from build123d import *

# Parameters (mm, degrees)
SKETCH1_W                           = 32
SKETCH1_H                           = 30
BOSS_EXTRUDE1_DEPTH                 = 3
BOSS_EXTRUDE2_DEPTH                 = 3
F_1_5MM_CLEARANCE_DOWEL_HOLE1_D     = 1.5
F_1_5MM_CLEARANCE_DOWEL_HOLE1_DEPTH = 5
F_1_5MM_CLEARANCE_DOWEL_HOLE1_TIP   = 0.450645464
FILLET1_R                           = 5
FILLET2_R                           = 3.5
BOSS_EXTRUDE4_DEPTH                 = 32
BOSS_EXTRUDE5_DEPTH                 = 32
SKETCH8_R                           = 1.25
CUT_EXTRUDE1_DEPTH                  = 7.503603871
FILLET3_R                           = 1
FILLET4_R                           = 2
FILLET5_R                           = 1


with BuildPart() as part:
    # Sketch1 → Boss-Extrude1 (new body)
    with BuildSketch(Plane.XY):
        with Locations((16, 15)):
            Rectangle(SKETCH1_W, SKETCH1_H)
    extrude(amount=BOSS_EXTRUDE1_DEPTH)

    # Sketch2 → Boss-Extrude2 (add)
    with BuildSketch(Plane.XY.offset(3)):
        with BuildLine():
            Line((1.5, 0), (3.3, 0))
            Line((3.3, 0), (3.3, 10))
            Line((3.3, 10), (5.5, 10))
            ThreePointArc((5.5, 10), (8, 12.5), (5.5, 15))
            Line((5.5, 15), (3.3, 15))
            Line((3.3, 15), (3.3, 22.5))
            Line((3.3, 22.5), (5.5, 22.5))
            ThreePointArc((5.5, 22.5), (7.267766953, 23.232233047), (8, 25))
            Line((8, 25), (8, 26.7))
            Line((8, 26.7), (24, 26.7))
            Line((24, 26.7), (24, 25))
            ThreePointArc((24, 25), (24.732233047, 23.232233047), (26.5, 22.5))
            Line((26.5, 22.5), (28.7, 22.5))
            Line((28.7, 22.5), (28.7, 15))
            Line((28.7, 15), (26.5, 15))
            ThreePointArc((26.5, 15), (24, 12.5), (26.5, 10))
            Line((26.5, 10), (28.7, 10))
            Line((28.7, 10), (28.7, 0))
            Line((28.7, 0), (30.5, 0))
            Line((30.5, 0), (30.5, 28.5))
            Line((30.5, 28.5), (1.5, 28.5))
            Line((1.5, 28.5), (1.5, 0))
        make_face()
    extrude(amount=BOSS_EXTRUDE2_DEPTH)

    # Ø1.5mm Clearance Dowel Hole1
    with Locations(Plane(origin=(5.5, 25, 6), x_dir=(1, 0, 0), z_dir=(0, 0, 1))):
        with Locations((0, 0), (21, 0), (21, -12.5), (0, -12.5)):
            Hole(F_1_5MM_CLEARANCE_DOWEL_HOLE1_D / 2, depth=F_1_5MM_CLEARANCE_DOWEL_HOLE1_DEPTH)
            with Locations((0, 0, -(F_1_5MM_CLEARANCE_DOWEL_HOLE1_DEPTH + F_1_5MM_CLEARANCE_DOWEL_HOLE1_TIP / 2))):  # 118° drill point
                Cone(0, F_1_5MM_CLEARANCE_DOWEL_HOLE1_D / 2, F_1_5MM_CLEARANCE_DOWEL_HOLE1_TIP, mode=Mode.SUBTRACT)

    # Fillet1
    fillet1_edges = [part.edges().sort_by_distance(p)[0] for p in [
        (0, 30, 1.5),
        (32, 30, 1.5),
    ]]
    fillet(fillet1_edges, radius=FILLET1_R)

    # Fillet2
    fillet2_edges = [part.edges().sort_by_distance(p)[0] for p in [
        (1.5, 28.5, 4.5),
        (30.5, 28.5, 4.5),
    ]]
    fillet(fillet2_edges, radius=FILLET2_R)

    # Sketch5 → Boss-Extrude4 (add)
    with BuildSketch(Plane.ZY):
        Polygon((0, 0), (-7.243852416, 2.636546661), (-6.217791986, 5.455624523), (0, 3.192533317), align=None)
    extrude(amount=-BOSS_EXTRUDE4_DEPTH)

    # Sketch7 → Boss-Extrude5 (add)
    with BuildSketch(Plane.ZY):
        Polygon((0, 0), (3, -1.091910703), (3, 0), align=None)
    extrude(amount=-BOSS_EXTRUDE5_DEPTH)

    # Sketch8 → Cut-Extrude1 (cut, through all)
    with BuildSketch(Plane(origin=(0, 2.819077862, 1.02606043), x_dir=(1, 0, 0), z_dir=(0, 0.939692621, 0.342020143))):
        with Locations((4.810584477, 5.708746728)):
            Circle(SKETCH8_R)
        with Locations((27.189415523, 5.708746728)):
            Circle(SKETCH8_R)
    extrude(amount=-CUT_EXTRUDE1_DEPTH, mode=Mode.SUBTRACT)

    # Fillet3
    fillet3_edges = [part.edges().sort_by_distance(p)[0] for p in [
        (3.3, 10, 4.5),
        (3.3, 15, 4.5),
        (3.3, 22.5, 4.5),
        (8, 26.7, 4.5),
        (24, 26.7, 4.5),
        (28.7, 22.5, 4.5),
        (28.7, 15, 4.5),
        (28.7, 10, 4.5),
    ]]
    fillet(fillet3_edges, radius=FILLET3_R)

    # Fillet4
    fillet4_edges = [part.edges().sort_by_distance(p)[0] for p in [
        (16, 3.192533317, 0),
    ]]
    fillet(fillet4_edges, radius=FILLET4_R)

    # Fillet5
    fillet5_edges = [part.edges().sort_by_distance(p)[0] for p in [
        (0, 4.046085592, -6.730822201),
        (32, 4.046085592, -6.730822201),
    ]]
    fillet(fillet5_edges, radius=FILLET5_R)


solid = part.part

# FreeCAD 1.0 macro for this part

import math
import FreeCAD as App
import Part
import Sketcher

V = App.Vector
Q = App.Units.Quantity


def edges_at(feature, points):
    """Names of the edges that pass closest to the given points."""
    edges = feature.Shape.Edges
    near = lambda p: min(range(len(edges)), key=lambda i: edges[i].distToShape(Part.Vertex(*p))[0])
    return sorted({f"Edge{near(p) + 1}" for p in points})

doc = App.newDocument("Part")
body = doc.addObject("PartDesign::Body", "Body")

# Sketch on XY plane
sketch1 = doc.addObject("Sketcher::SketchObject", "Sketch")
body.addObject(sketch1)
sketch1.AttachmentSupport = (doc.XY_Plane, [""])
sketch1.MapMode = "FlatFace"
sketch1.addGeometry(Part.LineSegment(V(0, 30, 0), V(0, 0, 0)), False)
sketch1.addGeometry(Part.LineSegment(V(0, 0, 0), V(32, 0, 0)), False)
sketch1.addGeometry(Part.LineSegment(V(32, 0, 0), V(32, 30, 0)), False)
sketch1.addGeometry(Part.LineSegment(V(32, 30, 0), V(0, 30, 0)), False)
sketch1.addConstraint(Sketcher.Constraint("Coincident", 0, 2, 1, 1))
sketch1.addConstraint(Sketcher.Constraint("Coincident", 1, 2, 2, 1))
sketch1.addConstraint(Sketcher.Constraint("Coincident", 2, 2, 3, 1))
sketch1.addConstraint(Sketcher.Constraint("Coincident", 3, 2, 0, 1))
sketch1.addConstraint(Sketcher.Constraint("Vertical", 0))
sketch1.addConstraint(Sketcher.Constraint("Horizontal", 1))
sketch1.addConstraint(Sketcher.Constraint("Vertical", 2))
sketch1.addConstraint(Sketcher.Constraint("Horizontal", 3))
sketch1.addConstraint(Sketcher.Constraint("Coincident", 0, 2, -1, 1))
sketch1.addConstraint(Sketcher.Constraint("DistanceX", 1, 1, 1, 2, 32.0))
sketch1.addConstraint(Sketcher.Constraint("DistanceY", 0, 2, 0, 1, 30.0))
pad1 = doc.addObject("PartDesign::Pad", "Pad")
body.addObject(pad1)
pad1.Profile = sketch1
pad1.Length = 3

# Sketch on XY plane
sketch2 = doc.addObject("Sketcher::SketchObject", "Sketch001")
body.addObject(sketch2)
sketch2.AttachmentSupport = (doc.XY_Plane, [""])
sketch2.MapMode = "FlatFace"
sketch2.AttachmentOffset = App.Placement(V(0, 0, 3), App.Rotation())
sketch2.addGeometry(Part.LineSegment(V(1.5, 0, 0), V(3.3, 0, 0)), False)
sketch2.addGeometry(Part.LineSegment(V(3.3, 0, 0), V(3.3, 10, 0)), False)
sketch2.addGeometry(Part.LineSegment(V(3.3, 10, 0), V(5.5, 10, 0)), False)
sketch2.addGeometry(Part.ArcOfCircle(Part.Circle(V(5.5, 12.5, 0), V(0, 0, 1), 2.5), math.radians(-90), math.radians(90)), False)
sketch2.addGeometry(Part.LineSegment(V(5.5, 15, 0), V(3.3, 15, 0)), False)
sketch2.addGeometry(Part.LineSegment(V(3.3, 15, 0), V(3.3, 22.5, 0)), False)
sketch2.addGeometry(Part.LineSegment(V(3.3, 22.5, 0), V(5.5, 22.5, 0)), False)
sketch2.addGeometry(Part.ArcOfCircle(Part.Circle(V(5.5, 25, 0), V(0, 0, 1), 2.5), math.radians(-90), math.radians(0)), False)
sketch2.addGeometry(Part.LineSegment(V(8, 25, 0), V(8, 26.7, 0)), False)
sketch2.addGeometry(Part.LineSegment(V(8, 26.7, 0), V(24, 26.7, 0)), False)
sketch2.addGeometry(Part.LineSegment(V(24, 26.7, 0), V(24, 25, 0)), False)
sketch2.addGeometry(Part.ArcOfCircle(Part.Circle(V(26.5, 25, 0), V(0, 0, 1), 2.5), math.radians(180), math.radians(270)), False)
sketch2.addGeometry(Part.LineSegment(V(26.5, 22.5, 0), V(28.7, 22.5, 0)), False)
sketch2.addGeometry(Part.LineSegment(V(28.7, 22.5, 0), V(28.7, 15, 0)), False)
sketch2.addGeometry(Part.LineSegment(V(28.7, 15, 0), V(26.5, 15, 0)), False)
sketch2.addGeometry(Part.ArcOfCircle(Part.Circle(V(26.5, 12.5, 0), V(0, 0, 1), 2.5), math.radians(90), math.radians(270)), False)
sketch2.addGeometry(Part.LineSegment(V(26.5, 10, 0), V(28.7, 10, 0)), False)
sketch2.addGeometry(Part.LineSegment(V(28.7, 10, 0), V(28.7, 0, 0)), False)
sketch2.addGeometry(Part.LineSegment(V(28.7, 0, 0), V(30.5, 0, 0)), False)
sketch2.addGeometry(Part.LineSegment(V(30.5, 0, 0), V(30.5, 28.5, 0)), False)
sketch2.addGeometry(Part.LineSegment(V(30.5, 28.5, 0), V(1.5, 28.5, 0)), False)
sketch2.addGeometry(Part.LineSegment(V(1.5, 28.5, 0), V(1.5, 0, 0)), False)
sketch2.addConstraint(Sketcher.Constraint("Coincident", 0, 2, 1, 1))
sketch2.addConstraint(Sketcher.Constraint("Coincident", 1, 2, 2, 1))
sketch2.addConstraint(Sketcher.Constraint("Tangent", 2, 2, 3, 1))
sketch2.addConstraint(Sketcher.Constraint("Tangent", 3, 2, 4, 1))
sketch2.addConstraint(Sketcher.Constraint("Coincident", 4, 2, 5, 1))
sketch2.addConstraint(Sketcher.Constraint("Coincident", 5, 2, 6, 1))
sketch2.addConstraint(Sketcher.Constraint("Tangent", 6, 2, 7, 1))
sketch2.addConstraint(Sketcher.Constraint("Tangent", 7, 2, 8, 1))
sketch2.addConstraint(Sketcher.Constraint("Coincident", 8, 2, 9, 1))
sketch2.addConstraint(Sketcher.Constraint("Coincident", 9, 2, 10, 1))
sketch2.addConstraint(Sketcher.Constraint("Tangent", 10, 2, 11, 1))
sketch2.addConstraint(Sketcher.Constraint("Tangent", 11, 2, 12, 1))
sketch2.addConstraint(Sketcher.Constraint("Coincident", 12, 2, 13, 1))
sketch2.addConstraint(Sketcher.Constraint("Coincident", 13, 2, 14, 1))
sketch2.addConstraint(Sketcher.Constraint("Tangent", 14, 2, 15, 1))
sketch2.addConstraint(Sketcher.Constraint("Tangent", 15, 2, 16, 1))
sketch2.addConstraint(Sketcher.Constraint("Coincident", 16, 2, 17, 1))
sketch2.addConstraint(Sketcher.Constraint("Coincident", 17, 2, 18, 1))
sketch2.addConstraint(Sketcher.Constraint("Coincident", 18, 2, 19, 1))
sketch2.addConstraint(Sketcher.Constraint("Coincident", 19, 2, 20, 1))
sketch2.addConstraint(Sketcher.Constraint("Coincident", 20, 2, 21, 1))
sketch2.addConstraint(Sketcher.Constraint("Coincident", 21, 2, 0, 1))
sketch2.addConstraint(Sketcher.Constraint("Horizontal", 0))
sketch2.addConstraint(Sketcher.Constraint("Vertical", 1))
sketch2.addConstraint(Sketcher.Constraint("Horizontal", 2))
sketch2.addConstraint(Sketcher.Constraint("Horizontal", 4))
sketch2.addConstraint(Sketcher.Constraint("Vertical", 5))
sketch2.addConstraint(Sketcher.Constraint("Horizontal", 6))
sketch2.addConstraint(Sketcher.Constraint("Vertical", 8))
sketch2.addConstraint(Sketcher.Constraint("Horizontal", 9))
sketch2.addConstraint(Sketcher.Constraint("Vertical", 10))
sketch2.addConstraint(Sketcher.Constraint("Horizontal", 12))
sketch2.addConstraint(Sketcher.Constraint("Vertical", 13))
sketch2.addConstraint(Sketcher.Constraint("Horizontal", 14))
sketch2.addConstraint(Sketcher.Constraint("Horizontal", 16))
sketch2.addConstraint(Sketcher.Constraint("Vertical", 17))
sketch2.addConstraint(Sketcher.Constraint("Horizontal", 18))
sketch2.addConstraint(Sketcher.Constraint("Vertical", 19))
sketch2.addConstraint(Sketcher.Constraint("Horizontal", 20))
sketch2.addConstraint(Sketcher.Constraint("Vertical", 21))
sketch2.addConstraint(Sketcher.Constraint("Equal", 3, 7))
sketch2.addConstraint(Sketcher.Constraint("Equal", 7, 11))
sketch2.addConstraint(Sketcher.Constraint("Equal", 11, 15))
sketch2.addConstraint(Sketcher.Constraint("PointOnObject", 0, 2, -1))
sketch2.addConstraint(Sketcher.Constraint("PointOnObject", 17, 2, -1))
sketch2.addConstraint(Sketcher.Constraint("Horizontal", 7, 3, 11, 3))
sketch2.addConstraint(Sketcher.Constraint("Horizontal", 3, 3, 15, 3))
sketch2.addConstraint(Sketcher.Constraint("Vertical", 3, 3, 7, 3))
sketch2.addConstraint(Sketcher.Constraint("Vertical", 11, 3, 15, 3))
sketch2.addConstraint(Sketcher.Constraint("Vertical", 1, 2, 4, 2))
sketch2.addConstraint(Sketcher.Constraint("Vertical", 13, 2, 16, 2))
sketch2.addConstraint(Sketcher.Constraint("Equal", 6, 12))
sketch2.addConstraint(Sketcher.Constraint("Equal", 0, 18))
sketch2.addConstraint(Sketcher.Constraint("Radius", 3, 2.5))
sketch2.addConstraint(Sketcher.Constraint("DistanceX", 9, 1, 9, 2, 16.0))
sketch2.addConstraint(Sketcher.Constraint("DistanceX", 20, 2, 20, 1, 29.0))
sketch2.addConstraint(Sketcher.Constraint("DistanceY", 1, 1, 1, 2, 10.0))
sketch2.addConstraint(Sketcher.Constraint("DistanceX", 0, 1, 0, 2, 1.8))
sketch2.addConstraint(Sketcher.Constraint("DistanceY", 5, 1, 5, 2, 7.5))
sketch2.addConstraint(Sketcher.Constraint("DistanceY", 8, 1, 8, 2, 1.7))
sketch2.addConstraint(Sketcher.Constraint("DistanceY", 19, 1, 19, 2, 28.5))
sketch2.addConstraint(Sketcher.Constraint("DistanceX", -1, 1, 7, 2, 8.0))
pad2 = doc.addObject("PartDesign::Pad", "Pad001")
body.addObject(pad2)
pad2.Profile = sketch2
pad2.Length = 3

# Sketch on XY plane
sketch3 = doc.addObject("Sketcher::SketchObject", "Sketch002")
body.addObject(sketch3)
sketch3.AttachmentSupport = (doc.XY_Plane, [""])
sketch3.MapMode = "FlatFace"
sketch3.AttachmentOffset = App.Placement(V(0, 0, 6), App.Rotation())
sketch3.addGeometry(Part.Circle(V(5.5, 25, 0), V(0, 0, 1), 0.8), False)
sketch3.addGeometry(Part.Circle(V(26.5, 25, 0), V(0, 0, 1), 0.8), False)
sketch3.addGeometry(Part.Circle(V(26.5, 12.5, 0), V(0, 0, 1), 0.8), False)
sketch3.addGeometry(Part.Circle(V(5.5, 12.5, 0), V(0, 0, 1), 0.8), False)
sketch3.addConstraint(Sketcher.Constraint("Equal", 0, 1))
sketch3.addConstraint(Sketcher.Constraint("Equal", 1, 2))
sketch3.addConstraint(Sketcher.Constraint("Equal", 2, 3))
sketch3.addConstraint(Sketcher.Constraint("Horizontal", 0, 3, 1, 3))
sketch3.addConstraint(Sketcher.Constraint("Horizontal", 2, 3, 3, 3))
sketch3.addConstraint(Sketcher.Constraint("Vertical", 1, 3, 2, 3))
sketch3.addConstraint(Sketcher.Constraint("Vertical", 0, 3, 3, 3))
sketch3.addConstraint(Sketcher.Constraint("Diameter", 0, 1.5))
sketch3.addConstraint(Sketcher.Constraint("DistanceY", -1, 1, 0, 3, 25.0))
sketch3.addConstraint(Sketcher.Constraint("DistanceX", 0, 3, 1, 3, 21.0))
sketch3.addConstraint(Sketcher.Constraint("DistanceX", -1, 1, 0, 3, 5.5))
sketch3.addConstraint(Sketcher.Constraint("DistanceY", -1, 1, 2, 3, 12.5))
doc.recompute()
hole = doc.addObject("PartDesign::Hole", "Hole")
body.addObject(hole)
hole.Profile = sketch3
hole.ThreadType = "None"
hole.Diameter = 1.5
hole.DepthType = "Dimension"
hole.Depth = 5
hole.DrillPoint = "Angled"
hole.DrillPointAngle = 118
doc.recompute()

fillet = doc.addObject("PartDesign::Fillet", "Fillet")
body.addObject(fillet)
fillet.Base = (hole, edges_at(hole, [(0, 30, 1.5), (32, 30, 1.5)]))
fillet.Radius = 5
doc.recompute()

fillet2 = doc.addObject("PartDesign::Fillet", "Fillet001")
body.addObject(fillet2)
fillet2.Base = (fillet, edges_at(fillet, [(1.5, 28.5, 4.5), (30.5, 28.5, 4.5)]))
fillet2.Radius = 3.5

# Sketch on YZ plane
sketch4 = doc.addObject("Sketcher::SketchObject", "Sketch003")
body.addObject(sketch4)
sketch4.AttachmentSupport = (doc.YZ_Plane, [""])
sketch4.MapMode = "FlatFace"
sketch4.addGeometry(Part.LineSegment(V(2.6, -7.2, 0), V(0, 0, 0)), False)
sketch4.addGeometry(Part.LineSegment(V(0, 0, 0), V(3.2, 0, 0)), False)
sketch4.addGeometry(Part.LineSegment(V(3.2, 0, 0), V(5.5, -6.2, 0)), False)
sketch4.addGeometry(Part.LineSegment(V(5.5, -6.2, 0), V(2.6, -7.2, 0)), False)
sketch4.addConstraint(Sketcher.Constraint("Coincident", 0, 2, 1, 1))
sketch4.addConstraint(Sketcher.Constraint("Coincident", 1, 2, 2, 1))
sketch4.addConstraint(Sketcher.Constraint("Coincident", 2, 2, 3, 1))
sketch4.addConstraint(Sketcher.Constraint("Coincident", 3, 2, 0, 1))
sketch4.addConstraint(Sketcher.Constraint("Horizontal", 1))
sketch4.addConstraint(Sketcher.Constraint("Coincident", 0, 2, -1, 1))
sketch4.addConstraint(Sketcher.Constraint("Parallel", 0, 2))
sketch4.addConstraint(Sketcher.Constraint("Perpendicular", 2, 3))
sketch4.addConstraint(Sketcher.Constraint("Angle", 0, Q("110 deg")))
sketch4.addConstraint(Sketcher.Constraint("Distance", 3, 3.0))
sketch4.addConstraint(Sketcher.Constraint("DistanceY", 2, 2, -1, 1, 6.217792))
pad3 = doc.addObject("PartDesign::Pad", "Pad002")
body.addObject(pad3)
pad3.Profile = sketch4
pad3.Length = 32

# Sketch on YZ plane
sketch5 = doc.addObject("Sketcher::SketchObject", "Sketch004")
body.addObject(sketch5)
sketch5.AttachmentSupport = (doc.YZ_Plane, [""])
sketch5.MapMode = "FlatFace"
sketch5.addGeometry(Part.LineSegment(V(0, 0, 0), V(-1.1, 3, 0)), False)
sketch5.addGeometry(Part.LineSegment(V(-1.1, 3, 0), V(0, 3, 0)), False)
sketch5.addGeometry(Part.LineSegment(V(0, 3, 0), V(0, 0, 0)), False)
sketch5.addConstraint(Sketcher.Constraint("Coincident", 0, 2, 1, 1))
sketch5.addConstraint(Sketcher.Constraint("Coincident", 1, 2, 2, 1))
sketch5.addConstraint(Sketcher.Constraint("Coincident", 2, 2, 0, 1))
sketch5.addConstraint(Sketcher.Constraint("Horizontal", 1))
sketch5.addConstraint(Sketcher.Constraint("Vertical", 2))
sketch5.addConstraint(Sketcher.Constraint("Coincident", 2, 2, -1, 1))
sketch5.addConstraint(Sketcher.Constraint("DistanceY", 2, 2, 2, 1, 3.0))
sketch5.addConstraint(Sketcher.Constraint("Angle", 0, Q("110 deg")))
pad4 = doc.addObject("PartDesign::Pad", "Pad003")
body.addObject(pad4)
pad4.Profile = sketch5
pad4.Length = 32

# Sketch on an angled plane
sketch6 = doc.addObject("Sketcher::SketchObject", "Sketch005")
body.addObject(sketch6)
sketch6.Placement = App.Placement(V(0, 2.819078, 1.02606), App.Rotation(V(1, 0, 0), V(0, 0.342020143, -0.939692621), V(0, 0.939692621, 0.342020143), "ZXY"))
sketch6.addGeometry(Part.Circle(V(4.8, 5.7, 0), V(0, 0, 1), 1.2), False)
sketch6.addGeometry(Part.Circle(V(27.2, 5.7, 0), V(0, 0, 1), 1.2), False)
sketch6.addConstraint(Sketcher.Constraint("Equal", 0, 1))
sketch6.addConstraint(Sketcher.Constraint("Horizontal", 0, 3, 1, 3))
sketch6.addConstraint(Sketcher.Constraint("Diameter", 0, 2.5))
sketch6.addConstraint(Sketcher.Constraint("DistanceX", 0, 3, 1, 3, 22.378831))
sketch6.addConstraint(Sketcher.Constraint("DistanceX", -1, 1, 0, 3, 4.810584))
sketch6.addConstraint(Sketcher.Constraint("DistanceY", -1, 1, 0, 3, 5.708747))
pocket1 = doc.addObject("PartDesign::Pocket", "Pocket")
body.addObject(pocket1)
pocket1.Profile = sketch6
pocket1.Type = "ThroughAll"
doc.recompute()

fillet3 = doc.addObject("PartDesign::Fillet", "Fillet002")
body.addObject(fillet3)
fillet3.Base = (pocket1, edges_at(pocket1, [
    (3.3, 10, 4.5),
    (3.3, 15, 4.5),
    (3.3, 22.5, 4.5),
    (8, 26.7, 4.5),
    (24, 26.7, 4.5),
    (28.7, 22.5, 4.5),
    (28.7, 15, 4.5),
    (28.7, 10, 4.5),
]))
fillet3.Radius = 1
doc.recompute()

fillet4 = doc.addObject("PartDesign::Fillet", "Fillet003")
body.addObject(fillet4)
fillet4.Base = (fillet3, edges_at(fillet3, [(16, 3.193, 0)]))
fillet4.Radius = 2
doc.recompute()

fillet5 = doc.addObject("PartDesign::Fillet", "Fillet004")
body.addObject(fillet5)
fillet5.Base = (fillet4, edges_at(fillet4, [(0, 4.046, -6.731), (32, 4.046, -6.731)]))
fillet5.Radius = 1

doc.recompute()
